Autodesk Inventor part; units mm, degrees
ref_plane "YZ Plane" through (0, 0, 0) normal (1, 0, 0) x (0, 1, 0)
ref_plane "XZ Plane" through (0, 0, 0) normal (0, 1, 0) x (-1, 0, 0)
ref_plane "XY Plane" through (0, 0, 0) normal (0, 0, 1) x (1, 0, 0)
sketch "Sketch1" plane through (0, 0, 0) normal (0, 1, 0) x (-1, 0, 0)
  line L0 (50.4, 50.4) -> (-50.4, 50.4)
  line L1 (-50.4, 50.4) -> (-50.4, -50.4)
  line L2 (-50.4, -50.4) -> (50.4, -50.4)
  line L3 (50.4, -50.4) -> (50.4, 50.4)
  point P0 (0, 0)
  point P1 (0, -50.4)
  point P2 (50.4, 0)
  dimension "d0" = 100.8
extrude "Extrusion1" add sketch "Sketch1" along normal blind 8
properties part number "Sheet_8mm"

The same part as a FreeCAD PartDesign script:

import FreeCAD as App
import Part
import Sketcher
Q = App.Units.Quantity


def add_polygon(sketch, points):
    """Adds a closed chain of lines whose ends are joined by coincident constraints."""
    first, n = sketch.GeometryCount, len(points)
    for a, b in zip(points, points[1:] + points[:1]):
        sketch.addGeometry(Part.LineSegment(App.Vector(*a, 0), App.Vector(*b, 0)), False)
    for i in range(n):
        sketch.addConstraint(Sketcher.Constraint("Coincident", first + i, 2, first + (i + 1) % n, 1))

doc = App.newDocument("Part")
params = doc.addObject("Spreadsheet::Sheet", "Params")
for row, (alias, value) in enumerate([
    ("sketch1_width", "100.8 mm"),
    ("pad1_length", "8 mm"),
], start=1):
    params.set(f"A{row}", alias)
    params.set(f"B{row}", "=" + value)
    params.setAlias(f"B{row}", alias)

body = doc.addObject("PartDesign::Body", "Body")

# Sketch on XZ plane
sketch1 = body.newObject("Sketcher::SketchObject", "Sketch")
sketch1.AttachmentSupport = (doc.getObject("XZ_Plane"), [""])
sketch1.MapMode = "FlatFace"
add_polygon(sketch1, [(-50, -50), (-50, 50), (50, 50), (50, -50)])  # lines 0-3
sketch1.addConstraint([
    Sketcher.Constraint("Vertical", 0),
    Sketcher.Constraint("Horizontal", 1),
    Sketcher.Constraint("Vertical", 2),
    Sketcher.Constraint("Horizontal", 3),
    Sketcher.Constraint("Symmetric", 0, 2, 2, 2, -1, 1),
    Sketcher.Constraint("Equal", 3, 0),
    Sketcher.Constraint("DistanceX", 1, 1, 1, 2, Q("100.8 mm")),
])
sketch1.setExpression("Constraints[10]", "Params.sketch1_width")
pad1 = body.newObject("PartDesign::Pad", "Pad")
pad1.Profile = sketch1
pad1.setExpression("Length", "Params.pad1_length")
pad1.Reversed = True

doc.recompute()
